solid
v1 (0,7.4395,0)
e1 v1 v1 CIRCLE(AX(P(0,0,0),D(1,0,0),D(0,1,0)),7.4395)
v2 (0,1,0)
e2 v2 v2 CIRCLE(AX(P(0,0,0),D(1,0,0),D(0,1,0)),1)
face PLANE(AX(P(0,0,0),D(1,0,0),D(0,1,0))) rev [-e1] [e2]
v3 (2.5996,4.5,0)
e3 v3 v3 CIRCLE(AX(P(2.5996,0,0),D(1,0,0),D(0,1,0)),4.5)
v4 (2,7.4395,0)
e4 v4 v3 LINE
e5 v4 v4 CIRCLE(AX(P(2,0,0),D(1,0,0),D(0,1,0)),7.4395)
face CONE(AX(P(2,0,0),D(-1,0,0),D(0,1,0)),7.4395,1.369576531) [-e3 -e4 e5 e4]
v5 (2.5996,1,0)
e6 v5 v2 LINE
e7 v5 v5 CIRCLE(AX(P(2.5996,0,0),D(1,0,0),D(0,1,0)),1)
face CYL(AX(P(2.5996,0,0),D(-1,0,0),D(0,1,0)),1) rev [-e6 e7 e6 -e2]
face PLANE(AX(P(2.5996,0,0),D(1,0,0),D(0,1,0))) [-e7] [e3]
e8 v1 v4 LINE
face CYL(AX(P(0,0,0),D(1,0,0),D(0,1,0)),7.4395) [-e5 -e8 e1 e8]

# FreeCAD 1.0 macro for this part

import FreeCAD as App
import Part
import Sketcher

V = App.Vector
Q = App.Units.Quantity

doc = App.newDocument("Part")
body = doc.addObject("PartDesign::Body", "Body")

# Sketch on XY plane
sketch1 = body.newObject("Sketcher::SketchObject", "Sketch")
sketch1.AttachmentSupport = (doc.getObject("XY_Plane"), [""])
sketch1.MapMode = "FlatFace"
sketch1.addGeometry([
    Part.LineSegment(V(0, 7.4, 0), V(0, 1, 0)),  # 0
    Part.LineSegment(V(0, 1, 0), V(2.6, 1, 0)),  # 1
    Part.LineSegment(V(2.6, 1, 0), V(2.6, 4.5, 0)),  # 2
    Part.LineSegment(V(2.6, 4.5, 0), V(2, 7.4, 0)),  # 3
    Part.LineSegment(V(2, 7.4, 0), V(0, 7.4, 0)),  # 4
], False)
sketch1.addConstraint([
    Sketcher.Constraint("Coincident", 0, 2, 1, 1),
    Sketcher.Constraint("Coincident", 1, 2, 2, 1),
    Sketcher.Constraint("Coincident", 2, 2, 3, 1),
    Sketcher.Constraint("Coincident", 3, 2, 4, 1),
    Sketcher.Constraint("Coincident", 4, 2, 0, 1),
    Sketcher.Constraint("Vertical", 0),
    Sketcher.Constraint("Horizontal", 1),
    Sketcher.Constraint("Vertical", 2),
    Sketcher.Constraint("Horizontal", 4),
    Sketcher.Constraint("PointOnObject", 0, 2, -2),
    Sketcher.Constraint("DistanceX", 4, 2, 4, 1, 2.0),
    Sketcher.Constraint("Distance", 3, 3.0),
    Sketcher.Constraint("DistanceY", 2, 1, 2, 2, 3.5),
    Sketcher.Constraint("DistanceY", -1, 1, 0, 2, 1.0),
    Sketcher.Constraint("Angle", 3, Q("101.529 deg")),
])
revolution = body.newObject("PartDesign::Revolution", "Revolution")
revolution.Profile = sketch1
revolution.ReferenceAxis = (sketch1, ["H_Axis"])
revolution.Angle = 360

doc.recompute()
